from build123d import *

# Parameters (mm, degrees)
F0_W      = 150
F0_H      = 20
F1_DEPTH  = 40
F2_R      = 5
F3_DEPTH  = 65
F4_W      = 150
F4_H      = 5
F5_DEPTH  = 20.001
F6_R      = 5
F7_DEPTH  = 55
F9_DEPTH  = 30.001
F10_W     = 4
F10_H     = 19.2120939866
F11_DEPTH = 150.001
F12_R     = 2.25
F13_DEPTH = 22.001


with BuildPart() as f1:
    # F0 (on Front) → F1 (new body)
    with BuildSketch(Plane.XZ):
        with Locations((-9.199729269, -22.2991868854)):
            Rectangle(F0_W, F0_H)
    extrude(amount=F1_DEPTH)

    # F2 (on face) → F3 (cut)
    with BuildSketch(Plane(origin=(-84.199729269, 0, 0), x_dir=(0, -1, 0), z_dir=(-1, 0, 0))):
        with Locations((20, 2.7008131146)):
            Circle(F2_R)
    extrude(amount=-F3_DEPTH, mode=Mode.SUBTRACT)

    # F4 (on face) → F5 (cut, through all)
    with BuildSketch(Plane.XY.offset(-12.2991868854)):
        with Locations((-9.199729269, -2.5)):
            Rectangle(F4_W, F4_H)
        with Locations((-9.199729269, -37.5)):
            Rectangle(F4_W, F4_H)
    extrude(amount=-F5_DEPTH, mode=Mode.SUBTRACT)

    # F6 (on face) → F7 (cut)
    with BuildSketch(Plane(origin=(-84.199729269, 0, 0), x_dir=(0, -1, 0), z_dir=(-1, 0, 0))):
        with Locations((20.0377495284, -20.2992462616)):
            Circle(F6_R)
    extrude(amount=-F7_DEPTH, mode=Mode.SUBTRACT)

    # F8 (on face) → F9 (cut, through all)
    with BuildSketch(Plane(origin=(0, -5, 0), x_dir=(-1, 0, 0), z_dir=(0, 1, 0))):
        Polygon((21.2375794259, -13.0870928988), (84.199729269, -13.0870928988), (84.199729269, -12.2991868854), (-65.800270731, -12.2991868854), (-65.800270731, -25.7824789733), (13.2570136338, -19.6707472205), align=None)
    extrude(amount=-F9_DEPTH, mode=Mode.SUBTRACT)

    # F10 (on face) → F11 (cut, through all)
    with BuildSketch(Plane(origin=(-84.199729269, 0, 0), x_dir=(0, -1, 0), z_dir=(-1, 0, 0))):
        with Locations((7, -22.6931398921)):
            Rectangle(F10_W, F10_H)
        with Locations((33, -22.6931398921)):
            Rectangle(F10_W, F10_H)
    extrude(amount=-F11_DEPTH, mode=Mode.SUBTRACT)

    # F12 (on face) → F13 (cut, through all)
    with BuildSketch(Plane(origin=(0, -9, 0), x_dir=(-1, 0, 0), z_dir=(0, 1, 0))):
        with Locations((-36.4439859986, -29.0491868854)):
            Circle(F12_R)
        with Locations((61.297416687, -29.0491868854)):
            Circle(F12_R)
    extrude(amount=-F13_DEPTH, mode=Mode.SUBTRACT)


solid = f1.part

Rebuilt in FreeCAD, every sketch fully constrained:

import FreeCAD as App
import Part
import Sketcher
from FreeCAD import Vector
Q = App.Units.Quantity

doc = App.newDocument("Part")
body = doc.addObject("PartDesign::Body", "Body")

# Sketch on XZ plane
sketch1 = body.newObject("Sketcher::SketchObject", "Sketch")
sketch1.AttachmentSupport = (doc.getObject("XZ_Plane"), [""])
sketch1.MapMode = "FlatFace"
sketch1.addGeometry([
    Part.LineSegment(Vector(-84, -12, 0), Vector(-84, -32, 0)),
    Part.LineSegment(Vector(-84, -32, 0), Vector(66, -32, 0)),
    Part.LineSegment(Vector(66, -32, 0), Vector(66, -12, 0)),
    Part.LineSegment(Vector(66, -12, 0), Vector(-84, -12, 0)),
], False)
sketch1.addConstraint([
    Sketcher.Constraint("Coincident", 0, 2, 1, 1),
    Sketcher.Constraint("Coincident", 1, 2, 2, 1),
    Sketcher.Constraint("Coincident", 2, 2, 3, 1),
    Sketcher.Constraint("Coincident", 3, 2, 0, 1),
    Sketcher.Constraint("Vertical", 0),
    Sketcher.Constraint("Horizontal", 1),
    Sketcher.Constraint("Vertical", 2),
    Sketcher.Constraint("Horizontal", 3),
    Sketcher.Constraint("DistanceX", 1, 1, 1, 2, Q("150 mm")),
    Sketcher.Constraint("DistanceY", 0, 2, 0, 1, Q("20 mm")),
    Sketcher.Constraint("DistanceX", 0, 2, -1, 1, Q("84.199729 mm")),
    Sketcher.Constraint("DistanceY", 0, 2, -1, 1, Q("32.299187 mm")),
])
pad1 = body.newObject("PartDesign::Pad", "Pad")
pad1.Profile = sketch1
pad1.Length = 40

# Sketch on YZ plane
sketch2 = body.newObject("Sketcher::SketchObject", "Sketch001")
sketch2.AttachmentSupport = (doc.getObject("YZ_Plane"), [""])
sketch2.MapMode = "FlatFace"
sketch2.AttachmentOffset = App.Placement(Vector(0, 0, -84.199729), App.Rotation())
sketch2.addGeometry(Part.Circle(Vector(-20, 3, 0), Vector(0, 0, 1), 5), False)
sketch2.addConstraint([
    Sketcher.Constraint("Diameter", 0, Q("10 mm")),
    Sketcher.Constraint("DistanceX", 0, 3, -1, 1, Q("20 mm")),
    Sketcher.Constraint("DistanceY", -1, 1, 0, 3, Q("2.700813 mm")),
])
pocket1 = body.newObject("PartDesign::Pocket", "Pocket")
pocket1.Profile = sketch2
pocket1.Length = 65
pocket1.Reversed = True

# Sketch on XY plane
sketch3 = body.newObject("Sketcher::SketchObject", "Sketch002")
sketch3.AttachmentSupport = (doc.getObject("XY_Plane"), [""])
sketch3.MapMode = "FlatFace"
sketch3.AttachmentOffset = App.Placement(Vector(0, 0, -12.299187), App.Rotation())
sketch3.addGeometry([
    Part.LineSegment(Vector(-84, 0, 0), Vector(-84, -5, 0)),  # 0
    Part.LineSegment(Vector(-84, -5, 0), Vector(66, -5, 0)),  # 1
    Part.LineSegment(Vector(66, -5, 0), Vector(66, 0, 0)),  # 2
    Part.LineSegment(Vector(66, 0, 0), Vector(-84, 0, 0)),  # 3
    Part.LineSegment(Vector(-84, -35, 0), Vector(-84, -40, 0)),  # 4
    Part.LineSegment(Vector(-84, -40, 0), Vector(66, -40, 0)),  # 5
    Part.LineSegment(Vector(66, -40, 0), Vector(66, -35, 0)),  # 6
    Part.LineSegment(Vector(66, -35, 0), Vector(-84, -35, 0)),  # 7
], False)
sketch3.addConstraint([
    Sketcher.Constraint("Coincident", 0, 2, 1, 1),
    Sketcher.Constraint("Coincident", 1, 2, 2, 1),
    Sketcher.Constraint("Coincident", 2, 2, 3, 1),
    Sketcher.Constraint("Coincident", 3, 2, 0, 1),
    Sketcher.Constraint("Coincident", 4, 2, 5, 1),
    Sketcher.Constraint("Coincident", 5, 2, 6, 1),
    Sketcher.Constraint("Coincident", 6, 2, 7, 1),
    Sketcher.Constraint("Coincident", 7, 2, 4, 1),
    Sketcher.Constraint("Vertical", 0),
    Sketcher.Constraint("Horizontal", 1),
    Sketcher.Constraint("Vertical", 2),
    Sketcher.Constraint("Horizontal", 3),
    Sketcher.Constraint("Vertical", 4),
    Sketcher.Constraint("Horizontal", 5),
    Sketcher.Constraint("Vertical", 6),
    Sketcher.Constraint("Horizontal", 7),
    Sketcher.Constraint("PointOnObject", 2, 2, -1),
    Sketcher.Constraint("Vertical", 3, 2, 4, 2),
    Sketcher.Constraint("Vertical", 2, 2, 5, 2),
    Sketcher.Constraint("Equal", 2, 4),
    Sketcher.Constraint("DistanceX", 1, 1, 1, 2, Q("150 mm")),
    Sketcher.Constraint("DistanceY", 0, 2, 0, 1, Q("5 mm")),
    Sketcher.Constraint("DistanceY", 4, 2, -1, 1, Q("40 mm")),
    Sketcher.Constraint("DistanceX", 0, 2, -1, 1, Q("84.199729 mm")),
])
pocket2 = body.newObject("PartDesign::Pocket", "Pocket001")
pocket2.Profile = sketch3
pocket2.Type = "ThroughAll"

# Sketch on YZ plane
sketch4 = body.newObject("Sketcher::SketchObject", "Sketch003")
sketch4.AttachmentSupport = (doc.getObject("YZ_Plane"), [""])
sketch4.MapMode = "FlatFace"
sketch4.AttachmentOffset = App.Placement(Vector(0, 0, -84.199729), App.Rotation())
sketch4.addGeometry(Part.Circle(Vector(-20, -20, 0), Vector(0, 0, 1), 5), False)
sketch4.addConstraint([
    Sketcher.Constraint("Diameter", 0, Q("10 mm")),
    Sketcher.Constraint("DistanceX", 0, 3, -1, 1, Q("20.03775 mm")),
    Sketcher.Constraint("DistanceY", 0, 3, -1, 1, Q("20.299246 mm")),
])
pocket3 = body.newObject("PartDesign::Pocket", "Pocket002")
pocket3.Profile = sketch4
pocket3.Length = 55
pocket3.Reversed = True

# Sketch on XZ plane
sketch5 = body.newObject("Sketcher::SketchObject", "Sketch004")
sketch5.AttachmentSupport = (doc.getObject("XZ_Plane"), [""])
sketch5.MapMode = "FlatFace"
sketch5.AttachmentOffset = App.Placement(Vector(0, 0, 5), App.Rotation())
sketch5.addGeometry([
    Part.LineSegment(Vector(-21.2, -13.1, 0), Vector(-84.2, -13.1, 0)),  # 0
    Part.LineSegment(Vector(-84.2, -13.1, 0), Vector(-84.2, -12.3, 0)),  # 1
    Part.LineSegment(Vector(-84.2, -12.3, 0), Vector(65.8, -12.3, 0)),  # 2
    Part.LineSegment(Vector(65.8, -12.3, 0), Vector(65.8, -25.8, 0)),  # 3
    Part.LineSegment(Vector(65.8, -25.8, 0), Vector(-13.3, -19.7, 0)),  # 4
    Part.LineSegment(Vector(-13.3, -19.7, 0), Vector(-21.2, -13.1, 0)),  # 5
], False)
sketch5.addConstraint([
    Sketcher.Constraint("Coincident", 0, 2, 1, 1),
    Sketcher.Constraint("Coincident", 1, 2, 2, 1),
    Sketcher.Constraint("Coincident", 2, 2, 3, 1),
    Sketcher.Constraint("Coincident", 3, 2, 4, 1),
    Sketcher.Constraint("Coincident", 4, 2, 5, 1),
    Sketcher.Constraint("Coincident", 5, 2, 0, 1),
    Sketcher.Constraint("Horizontal", 0),
    Sketcher.Constraint("Vertical", 1),
    Sketcher.Constraint("Horizontal", 2),
    Sketcher.Constraint("Vertical", 3),
    Sketcher.Constraint("DistanceX", 2, 1, 2, 2, Q("150 mm")),
    Sketcher.Constraint("DistanceX", 0, 2, 0, 1, Q("62.96215 mm")),
    Sketcher.Constraint("Distance", 5, Q("10.345721 mm")),
    Sketcher.Constraint("DistanceY", 1, 1, 1, 2, Q("0.787906 mm")),
    Sketcher.Constraint("DistanceY", 3, 2, 3, 1, Q("13.483292 mm")),
    Sketcher.Constraint("DistanceX", 0, 2, -1, 1, Q("84.199729 mm")),
    Sketcher.Constraint("DistanceY", 3, 2, -1, 1, Q("25.782479 mm")),
    Sketcher.Constraint("DistanceY", 4, 2, 1, 2, Q("7.37156 mm")),
])
pocket4 = body.newObject("PartDesign::Pocket", "Pocket003")
pocket4.Profile = sketch5
pocket4.Type = "ThroughAll"
pocket4.Reversed = True

# Sketch on YZ plane
sketch6 = body.newObject("Sketcher::SketchObject", "Sketch005")
sketch6.AttachmentSupport = (doc.getObject("YZ_Plane"), [""])
sketch6.MapMode = "FlatFace"
sketch6.AttachmentOffset = App.Placement(Vector(0, 0, -84.199729), App.Rotation())
sketch6.addGeometry([
    Part.LineSegment(Vector(-5, -13.1, 0), Vector(-5, -32.3, 0)),  # 0
    Part.LineSegment(Vector(-5, -32.3, 0), Vector(-9, -32.3, 0)),  # 1
    Part.LineSegment(Vector(-9, -32.3, 0), Vector(-9, -13.1, 0)),  # 2
    Part.LineSegment(Vector(-9, -13.1, 0), Vector(-5, -13.1, 0)),  # 3
    Part.LineSegment(Vector(-31, -13.1, 0), Vector(-31, -32.3, 0)),  # 4
    Part.LineSegment(Vector(-31, -32.3, 0), Vector(-35, -32.3, 0)),  # 5
    Part.LineSegment(Vector(-35, -32.3, 0), Vector(-35, -13.1, 0)),  # 6
    Part.LineSegment(Vector(-35, -13.1, 0), Vector(-31, -13.1, 0)),  # 7
], False)
sketch6.addConstraint([
    Sketcher.Constraint("Coincident", 0, 2, 1, 1),
    Sketcher.Constraint("Coincident", 1, 2, 2, 1),
    Sketcher.Constraint("Coincident", 2, 2, 3, 1),
    Sketcher.Constraint("Coincident", 3, 2, 0, 1),
    Sketcher.Constraint("Coincident", 4, 2, 5, 1),
    Sketcher.Constraint("Coincident", 5, 2, 6, 1),
    Sketcher.Constraint("Coincident", 6, 2, 7, 1),
    Sketcher.Constraint("Coincident", 7, 2, 4, 1),
    Sketcher.Constraint("Vertical", 0),
    Sketcher.Constraint("Horizontal", 1),
    Sketcher.Constraint("Vertical", 2),
    Sketcher.Constraint("Horizontal", 3),
    Sketcher.Constraint("Vertical", 4),
    Sketcher.Constraint("Horizontal", 5),
    Sketcher.Constraint("Vertical", 6),
    Sketcher.Constraint("Horizontal", 7),
    Sketcher.Constraint("Horizontal", 1, 2, 4, 2),
    Sketcher.Constraint("Horizontal", 3, 2, 6, 2),
    Sketcher.Constraint("Equal", 3, 5),
    Sketcher.Constraint("DistanceX", 1, 2, 1, 1, Q("4 mm")),
    Sketcher.Constraint("DistanceX", 0, 2, -1, 1, Q("5 mm")),
    Sketcher.Constraint("DistanceX", 4, 2, -1, 1, Q("31 mm")),
    Sketcher.Constraint("DistanceY", 0, 2, 0, 1, Q("19.212094 mm")),
    Sketcher.Constraint("DistanceY", 0, 2, -1, 1, Q("32.299187 mm")),
])
pocket5 = body.newObject("PartDesign::Pocket", "Pocket004")
pocket5.Profile = sketch6
pocket5.Type = "ThroughAll"
pocket5.Reversed = True

# Sketch on XZ plane
sketch7 = body.newObject("Sketcher::SketchObject", "Sketch006")
sketch7.AttachmentSupport = (doc.getObject("XZ_Plane"), [""])
sketch7.MapMode = "FlatFace"
sketch7.AttachmentOffset = App.Placement(Vector(0, 0, 9), App.Rotation())
sketch7.addGeometry([
    Part.Circle(Vector(36.4, -29, 0), Vector(0, 0, 1), 2.2),
    Part.Circle(Vector(-61.3, -29, 0), Vector(0, 0, 1), 2.2),
], False)
sketch7.addConstraint([
    Sketcher.Constraint("Equal", 0, 1),
    Sketcher.Constraint("Horizontal", 0, 3, 1, 3),
    Sketcher.Constraint("Diameter", 0, Q("4.5 mm")),
    Sketcher.Constraint("DistanceX", -1, 1, 0, 3, Q("36.443986 mm")),
    Sketcher.Constraint("DistanceY", 0, 3, -1, 1, Q("29.049187 mm")),
    Sketcher.Constraint("DistanceX", 1, 3, -1, 1, Q("61.297417 mm")),
])
pocket6 = body.newObject("PartDesign::Pocket", "Pocket005")
pocket6.Profile = sketch7
pocket6.Type = "ThroughAll"
pocket6.Reversed = True

doc.recompute()
